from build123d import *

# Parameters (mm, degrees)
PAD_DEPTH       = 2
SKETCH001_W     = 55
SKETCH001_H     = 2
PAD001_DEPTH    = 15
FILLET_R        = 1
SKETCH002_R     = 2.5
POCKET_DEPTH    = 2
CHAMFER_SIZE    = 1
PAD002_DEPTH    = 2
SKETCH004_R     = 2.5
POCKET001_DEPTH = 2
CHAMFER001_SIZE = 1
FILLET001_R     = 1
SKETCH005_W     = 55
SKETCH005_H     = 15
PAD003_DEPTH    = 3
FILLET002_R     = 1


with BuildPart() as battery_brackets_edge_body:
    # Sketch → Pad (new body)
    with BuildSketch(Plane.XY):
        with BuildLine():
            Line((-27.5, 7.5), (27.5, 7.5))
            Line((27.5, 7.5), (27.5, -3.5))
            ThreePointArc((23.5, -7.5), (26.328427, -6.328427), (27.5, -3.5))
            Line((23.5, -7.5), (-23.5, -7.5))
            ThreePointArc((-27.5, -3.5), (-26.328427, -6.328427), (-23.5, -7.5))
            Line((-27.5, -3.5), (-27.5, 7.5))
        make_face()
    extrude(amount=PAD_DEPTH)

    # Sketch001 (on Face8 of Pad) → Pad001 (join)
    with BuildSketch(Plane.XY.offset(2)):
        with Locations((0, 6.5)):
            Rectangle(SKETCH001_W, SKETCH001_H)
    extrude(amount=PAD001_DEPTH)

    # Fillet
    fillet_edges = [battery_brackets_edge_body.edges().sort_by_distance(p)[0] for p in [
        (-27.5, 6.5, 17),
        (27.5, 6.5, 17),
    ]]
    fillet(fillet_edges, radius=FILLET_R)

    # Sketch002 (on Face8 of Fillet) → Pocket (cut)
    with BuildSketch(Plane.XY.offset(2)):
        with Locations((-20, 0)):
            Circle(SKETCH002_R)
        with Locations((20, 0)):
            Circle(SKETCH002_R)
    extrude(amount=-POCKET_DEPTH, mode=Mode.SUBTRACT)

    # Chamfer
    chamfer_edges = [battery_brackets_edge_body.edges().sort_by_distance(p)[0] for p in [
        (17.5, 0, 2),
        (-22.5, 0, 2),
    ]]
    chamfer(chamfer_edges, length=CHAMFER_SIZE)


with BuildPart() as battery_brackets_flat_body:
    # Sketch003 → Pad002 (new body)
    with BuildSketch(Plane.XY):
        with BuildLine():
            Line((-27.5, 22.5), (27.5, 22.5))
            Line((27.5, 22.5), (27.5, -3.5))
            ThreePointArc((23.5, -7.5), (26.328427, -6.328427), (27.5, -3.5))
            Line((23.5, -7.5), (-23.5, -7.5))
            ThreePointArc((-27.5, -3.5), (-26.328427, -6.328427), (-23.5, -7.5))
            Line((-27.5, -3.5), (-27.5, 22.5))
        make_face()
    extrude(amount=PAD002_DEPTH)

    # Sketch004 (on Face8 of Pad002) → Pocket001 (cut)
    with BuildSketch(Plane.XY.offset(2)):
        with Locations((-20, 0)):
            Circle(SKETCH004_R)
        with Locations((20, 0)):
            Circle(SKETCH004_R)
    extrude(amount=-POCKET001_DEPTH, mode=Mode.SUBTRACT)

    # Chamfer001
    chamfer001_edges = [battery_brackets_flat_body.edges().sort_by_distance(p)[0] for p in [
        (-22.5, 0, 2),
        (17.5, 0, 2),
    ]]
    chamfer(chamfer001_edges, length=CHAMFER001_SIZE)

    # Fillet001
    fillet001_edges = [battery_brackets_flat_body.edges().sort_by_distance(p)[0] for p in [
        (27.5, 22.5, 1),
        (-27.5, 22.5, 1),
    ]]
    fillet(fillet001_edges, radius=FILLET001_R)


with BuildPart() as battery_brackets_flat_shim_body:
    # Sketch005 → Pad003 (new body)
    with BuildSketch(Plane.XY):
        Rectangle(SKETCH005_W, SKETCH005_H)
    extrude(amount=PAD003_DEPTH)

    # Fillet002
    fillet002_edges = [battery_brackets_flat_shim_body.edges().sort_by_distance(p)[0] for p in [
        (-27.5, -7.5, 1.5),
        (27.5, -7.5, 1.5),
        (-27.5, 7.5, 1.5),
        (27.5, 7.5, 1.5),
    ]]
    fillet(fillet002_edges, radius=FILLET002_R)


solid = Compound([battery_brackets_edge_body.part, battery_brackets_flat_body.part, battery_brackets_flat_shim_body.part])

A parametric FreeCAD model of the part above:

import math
import FreeCAD as App
import Part
import Sketcher

V = App.Vector
Q = App.Units.Quantity


def edges_at(feature, points):
    """Names of the edges that pass closest to the given points."""
    edges = feature.Shape.Edges
    near = lambda p: min(range(len(edges)), key=lambda i: edges[i].distToShape(Part.Vertex(*p))[0])
    return sorted({f"Edge{near(p) + 1}" for p in points})


def add_polygon(sketch, points):
    """Adds a closed chain of lines whose ends are joined by coincident constraints."""
    first, n = sketch.GeometryCount, len(points)
    for a, b in zip(points, points[1:] + points[:1]):
        sketch.addGeometry(Part.LineSegment(App.Vector(*a, 0), App.Vector(*b, 0)), False)
    for i in range(n):
        sketch.addConstraint(Sketcher.Constraint("Coincident", first + i, 2, first + (i + 1) % n, 1))

doc = App.newDocument("Part")
body = doc.addObject("PartDesign::Body", "Body")

# Sketch on XY plane
sketch1 = body.newObject("Sketcher::SketchObject", "Sketch")
sketch1.AttachmentSupport = (doc.getObject("XY_Plane"), [""])
sketch1.MapMode = "FlatFace"
sketch1.addGeometry([
    Part.LineSegment(V(27.5, 7.5, 0), V(-27.5, 7.5, 0)),  # 0
    Part.LineSegment(V(-27.5, 7.5, 0), V(-27.5, -3.5, 0)),  # 1
    Part.ArcOfCircle(Part.Circle(V(-23.5, -3.5, 0), V(0, 0, 1), 4), math.radians(-180), math.radians(-90)),  # 2
    Part.LineSegment(V(-23.5, -7.5, 0), V(23.5, -7.5, 0)),  # 3
    Part.ArcOfCircle(Part.Circle(V(23.5, -3.5, 0), V(0, 0, 1), 4), math.radians(-90), math.radians(0)),  # 4
    Part.LineSegment(V(27.5, -3.5, 0), V(27.5, 7.5, 0)),  # 5
], False)
sketch1.addConstraint([
    Sketcher.Constraint("Coincident", 0, 2, 1, 1),
    Sketcher.Constraint("Tangent", 1, 2, 2, 1),
    Sketcher.Constraint("Tangent", 2, 2, 3, 1),
    Sketcher.Constraint("Tangent", 3, 2, 4, 1),
    Sketcher.Constraint("Tangent", 4, 2, 5, 1),
    Sketcher.Constraint("Coincident", 5, 2, 0, 1),
    Sketcher.Constraint("Horizontal", 0),
    Sketcher.Constraint("Vertical", 1),
    Sketcher.Constraint("Horizontal", 3),
    Sketcher.Constraint("Vertical", 5),
    Sketcher.Constraint("Equal", 2, 4),
    Sketcher.Constraint("Radius", 2, Q("4 mm")),
    Sketcher.Constraint("DistanceX", 0, 2, 0, 1, Q("55 mm")),
    Sketcher.Constraint("DistanceY", 1, 2, 1, 1, Q("11 mm")),
    Sketcher.Constraint("DistanceX", 2, 3, -1, 1, Q("23.5 mm")),
    Sketcher.Constraint("DistanceY", 2, 3, -1, 1, Q("3.5 mm")),
])
pad1 = body.newObject("PartDesign::Pad", "Pad")
pad1.Profile = sketch1
pad1.Length = 2

# Sketch on XY plane
sketch2 = body.newObject("Sketcher::SketchObject", "Sketch001")
sketch2.AttachmentSupport = (doc.getObject("XY_Plane"), [""])
sketch2.MapMode = "FlatFace"
sketch2.AttachmentOffset = App.Placement(V(0, 0, 2), App.Rotation())
add_polygon(sketch2, [(-27.5, 7.5), (-27.5, 5.5), (27.5, 5.5), (27.5, 7.5)])  # lines 0-3
sketch2.addConstraint([
    Sketcher.Constraint("Vertical", 0),
    Sketcher.Constraint("Horizontal", 1),
    Sketcher.Constraint("Vertical", 2),
    Sketcher.Constraint("Horizontal", 3),
    Sketcher.Constraint("DistanceX", 1, 1, 1, 2, Q("55 mm")),
    Sketcher.Constraint("DistanceY", 0, 2, 0, 1, Q("2 mm")),
    Sketcher.Constraint("DistanceX", 0, 2, -1, 1, Q("27.5 mm")),
    Sketcher.Constraint("DistanceY", -1, 1, 0, 2, Q("5.5 mm")),
])
pad2 = body.newObject("PartDesign::Pad", "Pad001")
pad2.Profile = sketch2
pad2.Length = 15
doc.recompute()

fillet = body.newObject("PartDesign::Fillet", "Fillet")
fillet.Base = (pad2, edges_at(pad2, [(-27.5, 6.5, 17), (27.5, 6.5, 17)]))
fillet.Radius = 1

# Sketch on XY plane
sketch3 = body.newObject("Sketcher::SketchObject", "Sketch002")
sketch3.AttachmentSupport = (doc.getObject("XY_Plane"), [""])
sketch3.MapMode = "FlatFace"
sketch3.AttachmentOffset = App.Placement(V(0, 0, 2), App.Rotation())
sketch3.addGeometry([
    Part.Circle(V(-20, 0, 0), V(0, 0, 1), 2.5),
    Part.Circle(V(20, 0, 0), V(0, 0, 1), 2.5),
], False)
sketch3.addConstraint([
    Sketcher.Constraint("Equal", 0, 1),
    Sketcher.Constraint("Symmetric", 0, 3, 1, 3, -1, 1),
    Sketcher.Constraint("PointOnObject", 0, 3, -1),
    Sketcher.Constraint("Diameter", 0, Q("5 mm")),
    Sketcher.Constraint("DistanceX", 0, 3, -1, 1, Q("20 mm")),
])
pocket1 = body.newObject("PartDesign::Pocket", "Pocket")
pocket1.Profile = sketch3
pocket1.Length = 2
doc.recompute()

chamfer = body.newObject("PartDesign::Chamfer", "Chamfer")
chamfer.Base = (pocket1, edges_at(pocket1, [(17.5, 0, 2), (-22.5, 0, 2)]))
chamfer.Size = 1
body2 = doc.addObject("PartDesign::Body", "Body001")

# Sketch on XY plane
sketch4 = body2.newObject("Sketcher::SketchObject", "Sketch003")
sketch4.AttachmentSupport = (doc.getObject("XY_Plane001"), [""])
sketch4.MapMode = "FlatFace"
sketch4.addGeometry([
    Part.LineSegment(V(27.5, 22.5, 0), V(-27.5, 22.5, 0)),  # 0
    Part.LineSegment(V(-27.5, 22.5, 0), V(-27.5, -3.5, 0)),  # 1
    Part.ArcOfCircle(Part.Circle(V(-23.5, -3.5, 0), V(0, 0, 1), 4), math.radians(-180), math.radians(-90)),  # 2
    Part.LineSegment(V(-23.5, -7.5, 0), V(23.5, -7.5, 0)),  # 3
    Part.ArcOfCircle(Part.Circle(V(23.5, -3.5, 0), V(0, 0, 1), 4), math.radians(-90), math.radians(0)),  # 4
    Part.LineSegment(V(27.5, -3.5, 0), V(27.5, 22.5, 0)),  # 5
], False)
sketch4.addConstraint([
    Sketcher.Constraint("Coincident", 0, 2, 1, 1),
    Sketcher.Constraint("Tangent", 1, 2, 2, 1),
    Sketcher.Constraint("Tangent", 2, 2, 3, 1),
    Sketcher.Constraint("Tangent", 3, 2, 4, 1),
    Sketcher.Constraint("Tangent", 4, 2, 5, 1),
    Sketcher.Constraint("Coincident", 5, 2, 0, 1),
    Sketcher.Constraint("Horizontal", 0),
    Sketcher.Constraint("Vertical", 1),
    Sketcher.Constraint("Horizontal", 3),
    Sketcher.Constraint("Vertical", 5),
    Sketcher.Constraint("Equal", 2, 4),
    Sketcher.Constraint("Radius", 2, Q("4 mm")),
    Sketcher.Constraint("DistanceX", 0, 2, 0, 1, Q("55 mm")),
    Sketcher.Constraint("DistanceY", 1, 2, 1, 1, Q("26 mm")),
    Sketcher.Constraint("DistanceX", 2, 3, -1, 1, Q("23.5 mm")),
    Sketcher.Constraint("DistanceY", 2, 3, -1, 1, Q("3.5 mm")),
])
pad3 = body2.newObject("PartDesign::Pad", "Pad002")
pad3.Profile = sketch4
pad3.Length = 2

# Sketch on XY plane
sketch5 = body2.newObject("Sketcher::SketchObject", "Sketch004")
sketch5.AttachmentSupport = (doc.getObject("XY_Plane001"), [""])
sketch5.MapMode = "FlatFace"
sketch5.AttachmentOffset = App.Placement(V(0, 0, 2), App.Rotation())
sketch5.addGeometry([
    Part.Circle(V(-20, 0, 0), V(0, 0, 1), 2.5),
    Part.Circle(V(20, 0, 0), V(0, 0, 1), 2.5),
], False)
sketch5.addConstraint([
    Sketcher.Constraint("Equal", 0, 1),
    Sketcher.Constraint("Symmetric", 0, 3, 1, 3, -1, 1),
    Sketcher.Constraint("PointOnObject", 0, 3, -1),
    Sketcher.Constraint("Diameter", 0, Q("5 mm")),
    Sketcher.Constraint("DistanceX", 0, 3, -1, 1, Q("20 mm")),
])
pocket2 = body2.newObject("PartDesign::Pocket", "Pocket001")
pocket2.Profile = sketch5
pocket2.Length = 2
doc.recompute()

chamfer2 = body2.newObject("PartDesign::Chamfer", "Chamfer001")
chamfer2.Base = (pocket2, edges_at(pocket2, [(-22.5, 0, 2), (17.5, 0, 2)]))
chamfer2.Size = 1
doc.recompute()

fillet2 = body2.newObject("PartDesign::Fillet", "Fillet001")
fillet2.Base = (chamfer2, edges_at(chamfer2, [(27.5, 22.5, 1), (-27.5, 22.5, 1)]))
fillet2.Radius = 1
body3 = doc.addObject("PartDesign::Body", "Body002")

# Sketch on XY plane
sketch6 = body3.newObject("Sketcher::SketchObject", "Sketch005")
sketch6.AttachmentSupport = (doc.getObject("XY_Plane002"), [""])
sketch6.MapMode = "FlatFace"
add_polygon(sketch6, [(-28, 8), (-28, -8), (28, -8), (28, 8)])  # lines 0-3
sketch6.addConstraint([
    Sketcher.Constraint("Vertical", 0),
    Sketcher.Constraint("Horizontal", 1),
    Sketcher.Constraint("Vertical", 2),
    Sketcher.Constraint("Horizontal", 3),
    Sketcher.Constraint("Symmetric", 0, 2, 2, 2, -1, 1),
    Sketcher.Constraint("DistanceX", 1, 1, 1, 2, Q("55 mm")),
    Sketcher.Constraint("DistanceY", 0, 2, 0, 1, Q("15 mm")),
])
pad4 = body3.newObject("PartDesign::Pad", "Pad003")
pad4.Profile = sketch6
pad4.Length = 3
doc.recompute()

fillet3 = body3.newObject("PartDesign::Fillet", "Fillet002")
fillet3.Base = (pad4, edges_at(pad4, [
    (-27.5, -7.5, 1.5),
    (27.5, -7.5, 1.5),
    (-27.5, 7.5, 1.5),
    (27.5, 7.5, 1.5),
]))
fillet3.Radius = 1

doc.recompute()
